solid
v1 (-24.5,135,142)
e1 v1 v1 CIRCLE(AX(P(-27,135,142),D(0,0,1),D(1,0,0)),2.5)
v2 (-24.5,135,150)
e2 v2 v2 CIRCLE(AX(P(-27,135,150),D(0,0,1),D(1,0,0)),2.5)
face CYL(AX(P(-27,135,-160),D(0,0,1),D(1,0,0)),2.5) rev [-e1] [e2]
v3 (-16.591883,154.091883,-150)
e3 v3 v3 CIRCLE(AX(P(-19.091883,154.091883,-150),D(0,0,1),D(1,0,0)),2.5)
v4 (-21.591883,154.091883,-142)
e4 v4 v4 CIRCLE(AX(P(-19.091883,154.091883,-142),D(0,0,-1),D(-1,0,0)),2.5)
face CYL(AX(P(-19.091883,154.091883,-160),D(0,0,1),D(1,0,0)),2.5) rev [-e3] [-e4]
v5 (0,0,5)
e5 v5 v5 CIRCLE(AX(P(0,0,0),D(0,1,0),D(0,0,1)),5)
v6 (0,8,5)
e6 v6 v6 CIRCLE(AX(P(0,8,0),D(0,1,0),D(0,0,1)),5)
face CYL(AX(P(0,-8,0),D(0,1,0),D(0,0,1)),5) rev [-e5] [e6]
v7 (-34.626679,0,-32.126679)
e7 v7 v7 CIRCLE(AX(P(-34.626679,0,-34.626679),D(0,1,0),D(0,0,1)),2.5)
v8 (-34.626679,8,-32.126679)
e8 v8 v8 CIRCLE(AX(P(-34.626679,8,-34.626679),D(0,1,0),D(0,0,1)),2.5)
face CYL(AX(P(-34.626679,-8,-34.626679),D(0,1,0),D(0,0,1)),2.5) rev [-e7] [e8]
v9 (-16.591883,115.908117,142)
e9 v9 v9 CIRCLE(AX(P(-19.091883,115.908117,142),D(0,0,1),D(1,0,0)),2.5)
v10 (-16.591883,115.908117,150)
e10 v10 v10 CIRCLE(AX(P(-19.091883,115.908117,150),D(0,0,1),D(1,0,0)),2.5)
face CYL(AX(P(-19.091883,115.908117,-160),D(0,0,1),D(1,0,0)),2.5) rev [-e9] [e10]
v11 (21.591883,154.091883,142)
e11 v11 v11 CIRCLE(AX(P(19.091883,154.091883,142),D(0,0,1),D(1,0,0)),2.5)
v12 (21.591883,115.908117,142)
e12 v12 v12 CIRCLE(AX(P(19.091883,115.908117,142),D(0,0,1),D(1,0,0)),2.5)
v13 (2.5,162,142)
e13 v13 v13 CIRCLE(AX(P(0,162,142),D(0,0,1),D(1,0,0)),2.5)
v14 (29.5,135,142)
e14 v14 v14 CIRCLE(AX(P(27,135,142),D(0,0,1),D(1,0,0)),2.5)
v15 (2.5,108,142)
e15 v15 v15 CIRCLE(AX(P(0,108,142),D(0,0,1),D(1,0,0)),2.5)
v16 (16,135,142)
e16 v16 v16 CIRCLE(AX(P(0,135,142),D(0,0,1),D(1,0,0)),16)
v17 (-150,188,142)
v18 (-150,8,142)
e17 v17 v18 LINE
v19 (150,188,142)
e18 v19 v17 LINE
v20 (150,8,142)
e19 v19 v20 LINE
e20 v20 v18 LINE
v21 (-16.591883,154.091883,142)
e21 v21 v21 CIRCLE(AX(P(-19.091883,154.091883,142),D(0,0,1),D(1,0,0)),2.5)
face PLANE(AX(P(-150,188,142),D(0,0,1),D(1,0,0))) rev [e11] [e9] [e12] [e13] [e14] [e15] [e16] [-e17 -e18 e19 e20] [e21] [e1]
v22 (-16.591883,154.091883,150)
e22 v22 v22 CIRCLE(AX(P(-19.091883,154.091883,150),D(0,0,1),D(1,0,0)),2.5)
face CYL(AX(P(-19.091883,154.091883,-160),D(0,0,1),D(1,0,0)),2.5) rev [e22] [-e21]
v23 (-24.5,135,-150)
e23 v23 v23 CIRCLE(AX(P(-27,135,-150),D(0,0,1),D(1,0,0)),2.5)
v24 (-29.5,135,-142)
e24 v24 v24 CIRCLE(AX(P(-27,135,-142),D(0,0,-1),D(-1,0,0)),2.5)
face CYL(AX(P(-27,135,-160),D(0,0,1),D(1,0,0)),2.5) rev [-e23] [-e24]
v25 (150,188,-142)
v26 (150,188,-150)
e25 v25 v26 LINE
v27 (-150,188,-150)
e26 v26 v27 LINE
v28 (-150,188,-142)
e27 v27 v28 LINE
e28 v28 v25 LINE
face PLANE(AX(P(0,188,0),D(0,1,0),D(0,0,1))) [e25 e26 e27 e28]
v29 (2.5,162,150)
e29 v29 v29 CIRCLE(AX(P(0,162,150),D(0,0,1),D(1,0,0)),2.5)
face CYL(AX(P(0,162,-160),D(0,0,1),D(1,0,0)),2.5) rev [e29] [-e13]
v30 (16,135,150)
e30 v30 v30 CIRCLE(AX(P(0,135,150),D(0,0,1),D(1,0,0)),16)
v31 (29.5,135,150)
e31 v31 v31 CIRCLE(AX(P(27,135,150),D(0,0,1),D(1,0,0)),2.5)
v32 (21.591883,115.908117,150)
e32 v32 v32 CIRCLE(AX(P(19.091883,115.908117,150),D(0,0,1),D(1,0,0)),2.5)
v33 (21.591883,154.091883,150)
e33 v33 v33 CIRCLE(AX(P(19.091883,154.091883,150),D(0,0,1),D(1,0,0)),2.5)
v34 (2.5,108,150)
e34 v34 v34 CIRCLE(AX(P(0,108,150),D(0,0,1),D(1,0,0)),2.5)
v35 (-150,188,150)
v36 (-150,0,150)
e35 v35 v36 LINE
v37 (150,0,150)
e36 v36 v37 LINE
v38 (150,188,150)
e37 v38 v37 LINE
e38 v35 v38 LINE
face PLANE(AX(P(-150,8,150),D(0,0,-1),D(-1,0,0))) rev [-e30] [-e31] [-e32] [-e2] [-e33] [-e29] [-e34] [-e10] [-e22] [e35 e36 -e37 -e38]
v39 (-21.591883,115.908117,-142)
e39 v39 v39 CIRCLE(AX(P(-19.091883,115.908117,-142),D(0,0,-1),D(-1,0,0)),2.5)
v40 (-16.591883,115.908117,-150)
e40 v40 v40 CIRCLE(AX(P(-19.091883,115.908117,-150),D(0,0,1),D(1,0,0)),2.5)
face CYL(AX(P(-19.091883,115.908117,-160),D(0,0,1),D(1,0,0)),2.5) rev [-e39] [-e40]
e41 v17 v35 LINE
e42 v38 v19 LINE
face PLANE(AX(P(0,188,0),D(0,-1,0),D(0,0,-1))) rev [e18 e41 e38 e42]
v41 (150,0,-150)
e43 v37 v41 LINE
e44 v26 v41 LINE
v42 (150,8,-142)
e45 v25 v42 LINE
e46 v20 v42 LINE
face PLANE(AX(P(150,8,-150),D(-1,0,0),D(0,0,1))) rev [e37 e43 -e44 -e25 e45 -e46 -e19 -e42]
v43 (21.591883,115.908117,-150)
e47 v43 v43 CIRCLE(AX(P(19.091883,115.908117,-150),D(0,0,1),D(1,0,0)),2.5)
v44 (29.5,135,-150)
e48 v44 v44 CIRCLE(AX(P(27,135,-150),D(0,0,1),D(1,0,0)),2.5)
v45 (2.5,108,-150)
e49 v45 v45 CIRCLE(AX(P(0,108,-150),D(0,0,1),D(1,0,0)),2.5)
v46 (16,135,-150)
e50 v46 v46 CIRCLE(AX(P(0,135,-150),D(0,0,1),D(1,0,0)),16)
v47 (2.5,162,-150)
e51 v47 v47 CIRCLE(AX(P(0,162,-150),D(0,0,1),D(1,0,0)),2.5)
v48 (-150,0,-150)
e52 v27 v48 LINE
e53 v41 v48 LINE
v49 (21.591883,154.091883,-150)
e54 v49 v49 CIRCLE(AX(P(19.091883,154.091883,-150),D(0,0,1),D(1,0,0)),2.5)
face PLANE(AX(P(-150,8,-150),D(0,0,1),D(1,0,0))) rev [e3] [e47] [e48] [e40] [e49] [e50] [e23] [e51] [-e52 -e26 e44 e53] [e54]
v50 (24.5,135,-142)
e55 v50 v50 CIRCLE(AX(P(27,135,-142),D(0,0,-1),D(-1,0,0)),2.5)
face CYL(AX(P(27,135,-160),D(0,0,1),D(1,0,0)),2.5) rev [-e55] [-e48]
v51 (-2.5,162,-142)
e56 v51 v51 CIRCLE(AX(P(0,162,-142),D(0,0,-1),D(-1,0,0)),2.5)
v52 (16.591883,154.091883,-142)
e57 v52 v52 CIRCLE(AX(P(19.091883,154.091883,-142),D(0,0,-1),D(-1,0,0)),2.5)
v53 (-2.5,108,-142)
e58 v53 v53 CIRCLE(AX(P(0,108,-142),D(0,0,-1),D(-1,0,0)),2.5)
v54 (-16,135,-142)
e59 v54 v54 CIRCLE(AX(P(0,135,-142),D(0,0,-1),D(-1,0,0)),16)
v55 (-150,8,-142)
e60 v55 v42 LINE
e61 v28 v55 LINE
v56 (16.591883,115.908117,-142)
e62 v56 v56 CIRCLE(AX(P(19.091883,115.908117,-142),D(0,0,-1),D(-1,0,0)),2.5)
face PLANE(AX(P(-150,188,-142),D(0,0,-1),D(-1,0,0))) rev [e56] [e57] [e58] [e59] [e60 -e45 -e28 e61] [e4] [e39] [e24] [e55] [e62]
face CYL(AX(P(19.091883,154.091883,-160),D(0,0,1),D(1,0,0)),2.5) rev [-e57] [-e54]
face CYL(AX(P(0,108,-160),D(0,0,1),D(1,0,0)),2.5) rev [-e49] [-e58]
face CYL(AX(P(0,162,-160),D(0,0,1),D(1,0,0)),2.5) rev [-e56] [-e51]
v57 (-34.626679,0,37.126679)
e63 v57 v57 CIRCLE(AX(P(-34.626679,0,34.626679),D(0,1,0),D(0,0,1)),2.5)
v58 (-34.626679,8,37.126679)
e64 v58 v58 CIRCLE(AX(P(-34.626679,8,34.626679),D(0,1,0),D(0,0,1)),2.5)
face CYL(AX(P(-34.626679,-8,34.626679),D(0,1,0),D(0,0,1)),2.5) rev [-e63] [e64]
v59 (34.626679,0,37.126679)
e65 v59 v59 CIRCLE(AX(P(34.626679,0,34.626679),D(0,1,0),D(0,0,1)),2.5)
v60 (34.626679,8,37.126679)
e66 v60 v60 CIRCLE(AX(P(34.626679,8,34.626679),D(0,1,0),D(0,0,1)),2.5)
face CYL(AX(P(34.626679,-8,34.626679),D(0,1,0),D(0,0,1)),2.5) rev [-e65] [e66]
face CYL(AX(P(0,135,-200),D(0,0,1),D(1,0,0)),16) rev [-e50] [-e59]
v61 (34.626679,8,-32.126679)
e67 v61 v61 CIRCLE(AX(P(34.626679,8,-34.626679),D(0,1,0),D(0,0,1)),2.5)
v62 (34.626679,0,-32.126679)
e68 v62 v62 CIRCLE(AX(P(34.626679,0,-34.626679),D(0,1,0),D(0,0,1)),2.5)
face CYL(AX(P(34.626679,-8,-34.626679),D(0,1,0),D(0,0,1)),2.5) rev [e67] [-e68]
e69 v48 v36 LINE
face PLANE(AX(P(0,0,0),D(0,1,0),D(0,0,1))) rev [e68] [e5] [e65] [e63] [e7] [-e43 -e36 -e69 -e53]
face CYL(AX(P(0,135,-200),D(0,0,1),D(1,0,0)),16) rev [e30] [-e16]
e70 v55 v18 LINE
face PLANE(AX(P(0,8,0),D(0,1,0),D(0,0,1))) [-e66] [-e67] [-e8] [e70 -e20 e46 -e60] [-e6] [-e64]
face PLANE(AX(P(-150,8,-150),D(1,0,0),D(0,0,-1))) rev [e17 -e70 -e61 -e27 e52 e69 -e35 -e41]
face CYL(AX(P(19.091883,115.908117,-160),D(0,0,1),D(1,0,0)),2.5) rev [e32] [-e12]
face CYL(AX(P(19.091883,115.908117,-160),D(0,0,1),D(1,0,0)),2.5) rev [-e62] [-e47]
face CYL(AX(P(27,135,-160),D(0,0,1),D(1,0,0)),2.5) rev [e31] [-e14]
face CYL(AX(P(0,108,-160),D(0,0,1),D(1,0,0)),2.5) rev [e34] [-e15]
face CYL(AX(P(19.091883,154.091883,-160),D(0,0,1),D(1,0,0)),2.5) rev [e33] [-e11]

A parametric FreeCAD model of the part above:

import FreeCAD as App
import Part
import Sketcher

V = App.Vector
Q = App.Units.Quantity


def add_polygon(sketch, points):
    """Adds a closed chain of lines whose ends are joined by coincident constraints."""
    first, n = sketch.GeometryCount, len(points)
    for a, b in zip(points, points[1:] + points[:1]):
        sketch.addGeometry(Part.LineSegment(App.Vector(*a, 0), App.Vector(*b, 0)), False)
    for i in range(n):
        sketch.addConstraint(Sketcher.Constraint("Coincident", first + i, 2, first + (i + 1) % n, 1))

doc = App.newDocument("Part")
params = doc.addObject("Spreadsheet::Sheet", "Params")
for row, (alias, value) in enumerate([
    ("sketch1_width", "300 mm"),
    ("pad1_length", "8 mm"),
    ("sketch2_diameter", "10 mm"),
    ("sketch2_diameter2", "5 mm"),
    ("pocket1_length", "16 mm"),
    ("sketch3_width", "300 mm"),
    ("sketch3_height", "8 mm"),
    ("pad2_length", "180 mm"),
    ("sketch4_diameter", "32 mm"),
    ("pocket2_length", "350 mm"),
    ("sketch5_diameter", "5 mm"),
    ("pocket3_length", "310 mm"),
], start=1):
    params.set(f"A{row}", alias)
    params.set(f"B{row}", "=" + value)
    params.setAlias(f"B{row}", alias)

body = doc.addObject("PartDesign::Body", "Body")

sketch1 = body.newObject("Sketcher::SketchObject", "Sketch")
sketch1.AttachmentSupport = (doc.getObject("XZ_Plane"), [""])
sketch1.MapMode = "FlatFace"
add_polygon(sketch1, [(-150, -150), (-150, 150), (150, 150), (150, -150)])
sketch1.addConstraint([
    Sketcher.Constraint("Vertical", 0),
    Sketcher.Constraint("Horizontal", 1),
    Sketcher.Constraint("Vertical", 2),
    Sketcher.Constraint("Horizontal", 3),
    Sketcher.Constraint("Symmetric", 0, 2, 2, 2, -1, 1),
    Sketcher.Constraint("Equal", 3, 0),
    Sketcher.Constraint("DistanceX", 1, 1, 1, 2, Q("300 mm")),
])
sketch1.setExpression("Constraints[10]", "Params.sketch1_width")
pad1 = body.newObject("PartDesign::Pad", "Pad")
pad1.Profile = sketch1
pad1.setExpression("Length", "Params.pad1_length")
pad1.Reversed = True

sketch2 = body.newObject("Sketcher::SketchObject", "Sketch001")
sketch2.AttachmentSupport = (doc.getObject("XZ_Plane"), [""])
sketch2.MapMode = "FlatFace"
sketch2.AttachmentOffset = App.Placement(V(0, 0, -8), App.Rotation())
sketch2.addGeometry([
    Part.Circle(V(0, 0, 0), V(0, 0, 1), 5),
    Part.Circle(V(-34.6, -34.6, 0), V(0, 0, 1), 2.5),
    Part.Circle(V(34.6, -34.6, 0), V(0, 0, 1), 2.5),
    Part.Circle(V(34.6, 34.6, 0), V(0, 0, 1), 2.5),
    Part.Circle(V(-34.6, 34.6, 0), V(0, 0, 1), 2.5),
], False)
sketch2.addConstraint([
    Sketcher.Constraint("Coincident", 0, 3, -1, 1),
    Sketcher.Constraint("Equal", 1, 2),
    Sketcher.Constraint("Equal", 2, 3),
    Sketcher.Constraint("Equal", 3, 4),
    Sketcher.Constraint("Symmetric", 1, 3, 3, 3, -1, 1),
    Sketcher.Constraint("Symmetric", 2, 3, 4, 3, -1, 1),
    Sketcher.Constraint("Symmetric", 1, 3, 2, 3, -2),
    Sketcher.Constraint("Diameter", 0, Q("10 mm")),
    Sketcher.Constraint("Diameter", 1, Q("5 mm")),
    Sketcher.Constraint("DistanceX", 1, 3, -1, 1, Q("34.626679 mm")),
    Sketcher.Constraint("DistanceY", 1, 3, -1, 1, Q("34.626679 mm")),
])
sketch2.setExpression("Constraints[7]", "Params.sketch2_diameter")
sketch2.setExpression("Constraints[8]", "Params.sketch2_diameter2")
pocket1 = body.newObject("PartDesign::Pocket", "Pocket")
pocket1.Profile = sketch2
pocket1.setExpression("Length", "Params.pocket1_length")
pocket1.Reversed = True

sketch3 = body.newObject("Sketcher::SketchObject", "Sketch002")
sketch3.AttachmentSupport = (doc.getObject("XZ_Plane"), [""])
sketch3.MapMode = "FlatFace"
sketch3.AttachmentOffset = App.Placement(V(0, 0, -8), App.Rotation())
add_polygon(sketch3, [(-150, -150), (-150, -142), (150, -142), (150, -150)])
add_polygon(sketch3, [(-150, 142), (-150, 150), (150, 150), (150, 142)])
sketch3.addConstraint([
    Sketcher.Constraint("Vertical", 0),
    Sketcher.Constraint("Horizontal", 1),
    Sketcher.Constraint("Vertical", 2),
    Sketcher.Constraint("Horizontal", 3),
    Sketcher.Constraint("Vertical", 4),
    Sketcher.Constraint("Horizontal", 5),
    Sketcher.Constraint("Vertical", 6),
    Sketcher.Constraint("Horizontal", 7),
    Sketcher.Constraint("Symmetric", 2, 2, 4, 2, -1, 1),
    Sketcher.Constraint("Symmetric", 0, 2, 6, 2, -1, 1),
    Sketcher.Constraint("Vertical", 3, 2, 4, 2),
    Sketcher.Constraint("DistanceX", 1, 1, 1, 2, Q("300 mm")),
    Sketcher.Constraint("DistanceY", 0, 1, 0, 2, Q("8 mm")),
    Sketcher.Constraint("DistanceY", 0, 2, -1, 1, Q("142 mm")),
])
sketch3.setExpression("Constraints[19]", "Params.sketch3_width")
sketch3.setExpression("Constraints[20]", "Params.sketch3_height")
pad2 = body.newObject("PartDesign::Pad", "Pad001")
pad2.Profile = sketch3
pad2.setExpression("Length", "Params.pad2_length")
pad2.Reversed = True

sketch4 = body.newObject("Sketcher::SketchObject", "Sketch003")
sketch4.AttachmentSupport = (doc.getObject("XY_Plane"), [""])
sketch4.MapMode = "FlatFace"
sketch4.AttachmentOffset = App.Placement(V(0, 0, 150), App.Rotation())
sketch4.addGeometry(Part.Circle(V(0, 135, 0), V(0, 0, 1), 16), False)
sketch4.addConstraint([
    Sketcher.Constraint("PointOnObject", 0, 3, -2),
    Sketcher.Constraint("Diameter", 0, Q("32 mm")),
    Sketcher.Constraint("DistanceY", -1, 1, 0, 3, Q("135 mm")),
])
sketch4.setExpression("Constraints[1]", "Params.sketch4_diameter")
pocket2 = body.newObject("PartDesign::Pocket", "Pocket001")
pocket2.Profile = sketch4
pocket2.setExpression("Length", "Params.pocket2_length")

sketch5 = body.newObject("Sketcher::SketchObject", "Sketch004")
sketch5.AttachmentSupport = (doc.getObject("XY_Plane"), [""])
sketch5.MapMode = "FlatFace"
sketch5.AttachmentOffset = App.Placement(V(0, 0, 150), App.Rotation())
sketch5.addGeometry([
    Part.Circle(V(0, 162, 0), V(0, 0, 1), 2.5),
    Part.Circle(V(19.1, 154.1, 0), V(0, 0, 1), 2.5),
    Part.Circle(V(27, 135, 0), V(0, 0, 1), 2.5),
    Part.Circle(V(19.1, 115.9, 0), V(0, 0, 1), 2.5),
    Part.Circle(V(0, 108, 0), V(0, 0, 1), 2.5),
    Part.Circle(V(-19.1, 115.9, 0), V(0, 0, 1), 2.5),
    Part.Circle(V(-27, 135, 0), V(0, 0, 1), 2.5),
    Part.Circle(V(-19.1, 154.1, 0), V(0, 0, 1), 2.5),
], False)
sketch5.addConstraint([
    Sketcher.Constraint("Equal", 0, 1),
    Sketcher.Constraint("Equal", 1, 2),
    Sketcher.Constraint("Equal", 2, 3),
    Sketcher.Constraint("Equal", 3, 4),
    Sketcher.Constraint("Equal", 4, 5),
    Sketcher.Constraint("Equal", 5, 6),
    Sketcher.Constraint("Equal", 6, 7),
    Sketcher.Constraint("Symmetric", 3, 3, 5, 3, -2),
    Sketcher.Constraint("Symmetric", 2, 3, 6, 3, -2),
    Sketcher.Constraint("Symmetric", 1, 3, 7, 3, -2),
    Sketcher.Constraint("PointOnObject", 0, 3, -2),
    Sketcher.Constraint("PointOnObject", 4, 3, -2),
    Sketcher.Constraint("Vertical", 1, 3, 3, 3),
    Sketcher.Constraint("Diameter", 0, Q("5 mm")),
    Sketcher.Constraint("DistanceY", -1, 1, 0, 3, Q("162 mm")),
    Sketcher.Constraint("DistanceX", -1, 1, 2, 3, Q("27 mm")),
    Sketcher.Constraint("DistanceY", -1, 1, 2, 3, Q("135 mm")),
    Sketcher.Constraint("DistanceY", -1, 1, 4, 3, Q("108 mm")),
    Sketcher.Constraint("DistanceX", -1, 1, 1, 3, Q("19.091883 mm")),
    Sketcher.Constraint("DistanceY", -1, 1, 1, 3, Q("154.091883 mm")),
    Sketcher.Constraint("DistanceY", -1, 1, 3, 3, Q("115.908117 mm")),
])
sketch5.setExpression("Constraints[13]", "Params.sketch5_diameter")
pocket3 = body.newObject("PartDesign::Pocket", "Pocket002")
pocket3.Profile = sketch5
pocket3.setExpression("Length", "Params.pocket3_length")

doc.recompute()
